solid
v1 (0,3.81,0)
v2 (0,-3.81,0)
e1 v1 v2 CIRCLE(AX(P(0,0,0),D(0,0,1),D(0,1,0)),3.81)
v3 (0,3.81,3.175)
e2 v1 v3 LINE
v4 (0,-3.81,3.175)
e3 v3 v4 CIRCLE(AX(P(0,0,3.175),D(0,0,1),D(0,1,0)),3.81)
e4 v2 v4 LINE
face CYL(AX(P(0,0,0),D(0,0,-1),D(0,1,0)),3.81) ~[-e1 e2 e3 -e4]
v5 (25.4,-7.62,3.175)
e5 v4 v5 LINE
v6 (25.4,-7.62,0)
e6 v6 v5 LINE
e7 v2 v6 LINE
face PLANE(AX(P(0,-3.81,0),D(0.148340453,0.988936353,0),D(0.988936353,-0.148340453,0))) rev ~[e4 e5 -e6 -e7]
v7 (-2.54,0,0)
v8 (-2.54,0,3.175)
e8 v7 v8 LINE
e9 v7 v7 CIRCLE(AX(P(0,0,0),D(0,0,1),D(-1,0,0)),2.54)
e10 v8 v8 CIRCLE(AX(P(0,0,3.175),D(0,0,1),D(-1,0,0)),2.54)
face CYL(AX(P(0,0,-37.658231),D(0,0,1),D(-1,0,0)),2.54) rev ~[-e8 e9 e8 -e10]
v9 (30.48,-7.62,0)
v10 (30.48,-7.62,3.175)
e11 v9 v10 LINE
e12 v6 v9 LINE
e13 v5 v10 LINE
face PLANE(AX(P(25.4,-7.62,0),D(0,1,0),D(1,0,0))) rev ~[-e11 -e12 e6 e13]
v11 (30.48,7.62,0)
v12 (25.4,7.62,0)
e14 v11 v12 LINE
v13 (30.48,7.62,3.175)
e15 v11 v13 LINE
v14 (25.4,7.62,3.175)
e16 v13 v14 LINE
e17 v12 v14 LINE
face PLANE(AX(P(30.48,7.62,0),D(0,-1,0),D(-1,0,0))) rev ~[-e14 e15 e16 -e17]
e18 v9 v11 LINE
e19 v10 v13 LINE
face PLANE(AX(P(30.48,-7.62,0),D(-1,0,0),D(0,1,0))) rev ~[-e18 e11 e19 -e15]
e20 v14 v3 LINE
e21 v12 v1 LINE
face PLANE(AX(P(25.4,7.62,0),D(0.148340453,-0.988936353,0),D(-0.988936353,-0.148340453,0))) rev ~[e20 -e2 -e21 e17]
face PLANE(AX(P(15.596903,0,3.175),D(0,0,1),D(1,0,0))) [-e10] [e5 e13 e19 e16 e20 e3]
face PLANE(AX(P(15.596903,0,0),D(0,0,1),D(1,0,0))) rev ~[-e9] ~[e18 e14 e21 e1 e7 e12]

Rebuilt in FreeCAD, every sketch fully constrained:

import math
import FreeCAD as App
import Part
import Sketcher
Q = App.Units.Quantity

doc = App.newDocument("Part")
body = doc.addObject("PartDesign::Body", "Body")

sketch1 = body.newObject("Sketcher::SketchObject", "Sketch")
sketch1.AttachmentSupport = (doc.getObject("XY_Plane"), [""])
sketch1.MapMode = "FlatFace"
sketch1.addGeometry(Part.LineSegment(App.Vector(25.4, 7.62, 0), App.Vector(0, 3.81, 0)), False)
sketch1.addGeometry(Part.ArcOfCircle(Part.Circle(App.Vector(0, 0, 0), App.Vector(0, 0, 1), 3.81), math.radians(90), math.radians(270)), False)
sketch1.addGeometry(Part.LineSegment(App.Vector(0, -3.81, 0), App.Vector(25.4, -7.62, 0)), False)
sketch1.addGeometry(Part.LineSegment(App.Vector(25.4, -7.62, 0), App.Vector(30.48, -7.62, 0)), False)
sketch1.addGeometry(Part.LineSegment(App.Vector(30.48, -7.62, 0), App.Vector(30.48, 7.62, 0)), False)
sketch1.addGeometry(Part.LineSegment(App.Vector(30.48, 7.62, 0), App.Vector(25.4, 7.62, 0)), False)
sketch1.addConstraint(Sketcher.Constraint("Coincident", 0, 2, 1, 1))
sketch1.addConstraint(Sketcher.Constraint("Coincident", 1, 2, 2, 1))
sketch1.addConstraint(Sketcher.Constraint("Coincident", 2, 2, 3, 1))
sketch1.addConstraint(Sketcher.Constraint("Coincident", 3, 2, 4, 1))
sketch1.addConstraint(Sketcher.Constraint("Coincident", 4, 2, 5, 1))
sketch1.addConstraint(Sketcher.Constraint("Coincident", 5, 2, 0, 1))
sketch1.addConstraint(Sketcher.Constraint("Horizontal", 3))
sketch1.addConstraint(Sketcher.Constraint("Vertical", 4))
sketch1.addConstraint(Sketcher.Constraint("Horizontal", 5))
sketch1.addConstraint(Sketcher.Constraint("Coincident", 1, 3, -1, 1))
sketch1.addConstraint(Sketcher.Constraint("Symmetric", 2, 2, 5, 2, -1))
sketch1.addConstraint(Sketcher.Constraint("PointOnObject", 0, 2, -2))
sketch1.addConstraint(Sketcher.Constraint("PointOnObject", 1, 2, -2))
sketch1.addConstraint(Sketcher.Constraint("Radius", 1, Q("0.15 in")))
sketch1.addConstraint(Sketcher.Constraint("DistanceX", 3, 1, 3, 2, Q("0.2 in")))
sketch1.addConstraint(Sketcher.Constraint("DistanceY", 4, 1, 4, 2, Q("0.6 in")))
sketch1.addConstraint(Sketcher.Constraint("DistanceX", -1, 1, 2, 2, Q("1 in")))
pad1 = body.newObject("PartDesign::Pad", "Pad")
pad1.Profile = sketch1
pad1.Length = Q("0.125 in")

sketch2 = body.newObject("Sketcher::SketchObject", "Sketch001")
sketch2.AttachmentSupport = (doc.getObject("XY_Plane"), [""])
sketch2.MapMode = "FlatFace"
sketch2.addGeometry(Part.Circle(App.Vector(0, 0, 0), App.Vector(0, 0, 1), 2.54), False)
sketch2.addConstraint(Sketcher.Constraint("Coincident", 0, 3, -1, 1))
sketch2.addConstraint(Sketcher.Constraint("Diameter", 0, Q("0.2 in")))
doc.recompute()
hole = body.newObject("PartDesign::Hole", "Hole")
hole.Profile = sketch2
hole.ThreadType = "None"
hole.Diameter = Q("0.2 in")
hole.DepthType = "ThroughAll"
hole.Reversed = True

doc.recompute()
